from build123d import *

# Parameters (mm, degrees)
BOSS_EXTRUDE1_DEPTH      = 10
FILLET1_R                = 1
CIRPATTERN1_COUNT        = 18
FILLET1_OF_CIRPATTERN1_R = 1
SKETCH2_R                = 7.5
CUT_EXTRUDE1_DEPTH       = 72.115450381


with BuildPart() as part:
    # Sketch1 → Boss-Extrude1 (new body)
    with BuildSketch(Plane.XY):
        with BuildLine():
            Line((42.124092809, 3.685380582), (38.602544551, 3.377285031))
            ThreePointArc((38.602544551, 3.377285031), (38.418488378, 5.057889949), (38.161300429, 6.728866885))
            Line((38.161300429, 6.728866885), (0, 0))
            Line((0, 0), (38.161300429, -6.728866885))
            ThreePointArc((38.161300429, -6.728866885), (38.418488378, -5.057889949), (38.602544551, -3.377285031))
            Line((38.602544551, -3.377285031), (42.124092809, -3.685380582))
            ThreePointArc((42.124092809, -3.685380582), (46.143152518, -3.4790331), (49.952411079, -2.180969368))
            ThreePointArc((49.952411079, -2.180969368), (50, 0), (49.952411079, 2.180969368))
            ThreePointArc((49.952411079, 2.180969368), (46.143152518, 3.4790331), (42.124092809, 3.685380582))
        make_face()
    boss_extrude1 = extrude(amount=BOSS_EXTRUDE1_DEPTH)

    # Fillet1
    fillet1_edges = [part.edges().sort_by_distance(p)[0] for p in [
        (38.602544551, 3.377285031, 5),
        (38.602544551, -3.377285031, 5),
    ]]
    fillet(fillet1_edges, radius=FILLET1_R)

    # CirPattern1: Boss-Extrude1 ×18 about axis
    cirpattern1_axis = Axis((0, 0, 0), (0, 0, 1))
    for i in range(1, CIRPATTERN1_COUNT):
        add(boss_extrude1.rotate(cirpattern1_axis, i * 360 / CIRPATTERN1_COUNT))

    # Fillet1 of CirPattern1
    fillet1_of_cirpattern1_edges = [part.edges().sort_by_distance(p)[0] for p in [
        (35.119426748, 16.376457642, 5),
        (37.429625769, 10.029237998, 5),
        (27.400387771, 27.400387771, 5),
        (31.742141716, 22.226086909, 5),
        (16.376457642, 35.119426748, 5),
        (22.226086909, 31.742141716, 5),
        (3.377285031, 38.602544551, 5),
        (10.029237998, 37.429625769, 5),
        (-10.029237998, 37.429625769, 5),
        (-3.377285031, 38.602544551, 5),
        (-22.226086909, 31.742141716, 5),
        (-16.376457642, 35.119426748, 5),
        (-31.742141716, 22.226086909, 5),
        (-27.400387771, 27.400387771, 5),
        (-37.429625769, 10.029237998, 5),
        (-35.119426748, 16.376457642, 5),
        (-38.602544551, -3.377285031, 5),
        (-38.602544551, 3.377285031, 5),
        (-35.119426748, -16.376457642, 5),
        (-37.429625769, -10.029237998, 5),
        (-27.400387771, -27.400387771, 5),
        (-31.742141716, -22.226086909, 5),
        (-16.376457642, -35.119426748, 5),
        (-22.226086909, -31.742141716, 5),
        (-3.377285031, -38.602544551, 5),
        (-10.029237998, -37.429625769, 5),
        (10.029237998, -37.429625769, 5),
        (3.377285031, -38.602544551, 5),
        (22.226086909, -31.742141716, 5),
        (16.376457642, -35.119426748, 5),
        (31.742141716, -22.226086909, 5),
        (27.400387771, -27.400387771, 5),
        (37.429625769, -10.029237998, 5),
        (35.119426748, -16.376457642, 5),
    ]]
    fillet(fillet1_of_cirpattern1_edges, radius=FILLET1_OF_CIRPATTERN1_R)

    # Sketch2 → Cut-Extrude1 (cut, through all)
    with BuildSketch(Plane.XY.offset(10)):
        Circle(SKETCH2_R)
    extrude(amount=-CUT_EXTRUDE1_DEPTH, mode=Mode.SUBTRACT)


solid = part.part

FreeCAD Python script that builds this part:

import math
import FreeCAD as App
import Part
import Sketcher

V = App.Vector
Q = App.Units.Quantity


def edges_at(feature, points):
    """Names of the edges that pass closest to the given points."""
    edges = feature.Shape.Edges
    near = lambda p: min(range(len(edges)), key=lambda i: edges[i].distToShape(Part.Vertex(*p))[0])
    return sorted({f"Edge{near(p) + 1}" for p in points})

doc = App.newDocument("Part")
body = doc.addObject("PartDesign::Body", "Body")

# Sketch on XY plane
sketch1 = body.newObject("Sketcher::SketchObject", "Sketch")
sketch1.AttachmentSupport = (doc.getObject("XY_Plane"), [""])
sketch1.MapMode = "FlatFace"
sketch1.addGeometry([
    Part.LineSegment(V(42.1, 3.7, 0), V(38.6, 3.4, 0)),  # 0
    Part.ArcOfCircle(Part.Circle(V(0, 0, 0), V(0, 0, 1), 38.8), math.radians(5), math.radians(10)),  # 1
    Part.LineSegment(V(38.2, 6.7, 0), V(0, 0, 0)),  # 2
    Part.LineSegment(V(0, 0, 0), V(38.2, -6.7, 0)),  # 3
    Part.ArcOfCircle(Part.Circle(V(0, 0, 0), V(0, 0, 1), 38.8), math.radians(-10), math.radians(-5)),  # 4
    Part.LineSegment(V(38.6, -3.4, 0), V(42.1, -3.7, 0)),  # 5
    Part.ArcOfCircle(Part.Circle(V(43.4, 10.8, 0), V(0, 0, 1), 14.6), math.radians(-95), math.radians(-63)),  # 6
    Part.ArcOfCircle(Part.Circle(V(0, 0, 0), V(0, 0, 1), 50), math.radians(-2.5), math.radians(2.5)),  # 7
    Part.ArcOfCircle(Part.Circle(V(43.4, -10.8, 0), V(0, 0, 1), 14.6), math.radians(63), math.radians(95)),  # 8
], False)
sketch1.addConstraint([
    Sketcher.Constraint("Coincident", 0, 2, 1, 1),
    Sketcher.Constraint("Coincident", 1, 2, 2, 1),
    Sketcher.Constraint("Coincident", 2, 2, 3, 1),
    Sketcher.Constraint("Coincident", 3, 2, 4, 1),
    Sketcher.Constraint("Coincident", 4, 2, 5, 1),
    Sketcher.Constraint("Tangent", 5, 2, 6, 1),
    Sketcher.Constraint("Coincident", 6, 2, 7, 1),
    Sketcher.Constraint("Coincident", 7, 2, 8, 1),
    Sketcher.Constraint("Tangent", 8, 2, 0, 1),
    Sketcher.Constraint("Coincident", 1, 3, -1, 1),
    Sketcher.Constraint("Coincident", 4, 3, -1, 1),
    Sketcher.Constraint("Coincident", 7, 3, -1, 1),
    Sketcher.Constraint("Coincident", 2, 2, -1, 1),
    Sketcher.Constraint("Equal", 1, 4),
    Sketcher.Constraint("Equal", 6, 8),
    Sketcher.Constraint("Symmetric", 6, 3, 8, 3, -1),
    Sketcher.Constraint("Vertical", 1, 2, 3, 2),
    Sketcher.Constraint("Vertical", 0, 2, 4, 2),
    Sketcher.Constraint("Radius", 7, Q("50 mm")),
    Sketcher.Constraint("Angle", 0, Q("-175 deg")),
    Sketcher.Constraint("Angle", 2, Q("-170 deg")),
    Sketcher.Constraint("Radius", 1, Q("38.75 mm")),
    Sketcher.Constraint("Radius", 6, Q("14.568251 mm")),
    Sketcher.Constraint("Distance", 0, Q("3.535 mm")),
    Sketcher.Constraint("DistanceX", -1, 1, 6, 3, Q("43.3938 mm")),
])
pad1 = body.newObject("PartDesign::Pad", "Pad")
pad1.Profile = sketch1
pad1.Length = 10
doc.recompute()

fillet = body.newObject("PartDesign::Fillet", "Fillet")
fillet.Base = (pad1, edges_at(pad1, [(38.603, 3.377, 5), (38.603, -3.377, 5)]))
fillet.Radius = 1
doc.recompute()

polarpattern = body.newObject("PartDesign::PolarPattern", "PolarPattern")
polarpattern.Originals = [pad1]
polarpattern.Axis = (doc.getObject("Z_Axis"), [""])
polarpattern.Angle = 360
polarpattern.Occurrences = 18
body.Tip = polarpattern
doc.recompute()

fillet2 = body.newObject("PartDesign::Fillet", "Fillet001")
fillet2.Base = (polarpattern, edges_at(polarpattern, [
    (35.119, 16.376, 5),
    (37.43, 10.029, 5),
    (27.4, 27.4, 5),
    (31.742, 22.226, 5),
    (16.376, 35.119, 5),
    (22.226, 31.742, 5),
    (3.377, 38.603, 5),
    (10.029, 37.43, 5),
    (-10.029, 37.43, 5),
    (-3.377, 38.603, 5),
    (-22.226, 31.742, 5),
    (-16.376, 35.119, 5),
    (-31.742, 22.226, 5),
    (-27.4, 27.4, 5),
    (-37.43, 10.029, 5),
    (-35.119, 16.376, 5),
    (-38.603, -3.377, 5),
    (-38.603, 3.377, 5),
    (-35.119, -16.376, 5),
    (-37.43, -10.029, 5),
    (-27.4, -27.4, 5),
    (-31.742, -22.226, 5),
    (-16.376, -35.119, 5),
    (-22.226, -31.742, 5),
    (-3.377, -38.603, 5),
    (-10.029, -37.43, 5),
    (10.029, -37.43, 5),
    (3.377, -38.603, 5),
    (22.226, -31.742, 5),
    (16.376, -35.119, 5),
    (31.742, -22.226, 5),
    (27.4, -27.4, 5),
    (37.43, -10.029, 5),
    (35.119, -16.376, 5),
]))
fillet2.Radius = 1

# Sketch on XY plane
sketch2 = body.newObject("Sketcher::SketchObject", "Sketch001")
sketch2.AttachmentSupport = (doc.getObject("XY_Plane"), [""])
sketch2.MapMode = "FlatFace"
sketch2.AttachmentOffset = App.Placement(V(0, 0, 10), App.Rotation())
sketch2.addGeometry(Part.Circle(V(0, 0, 0), V(0, 0, 1), 8), False)
sketch2.addConstraint([
    Sketcher.Constraint("Coincident", 0, 3, -1, 1),
    Sketcher.Constraint("Diameter", 0, Q("15 mm")),
])
pocket1 = body.newObject("PartDesign::Pocket", "Pocket")
pocket1.Profile = sketch2
pocket1.Type = "ThroughAll"

doc.recompute()
